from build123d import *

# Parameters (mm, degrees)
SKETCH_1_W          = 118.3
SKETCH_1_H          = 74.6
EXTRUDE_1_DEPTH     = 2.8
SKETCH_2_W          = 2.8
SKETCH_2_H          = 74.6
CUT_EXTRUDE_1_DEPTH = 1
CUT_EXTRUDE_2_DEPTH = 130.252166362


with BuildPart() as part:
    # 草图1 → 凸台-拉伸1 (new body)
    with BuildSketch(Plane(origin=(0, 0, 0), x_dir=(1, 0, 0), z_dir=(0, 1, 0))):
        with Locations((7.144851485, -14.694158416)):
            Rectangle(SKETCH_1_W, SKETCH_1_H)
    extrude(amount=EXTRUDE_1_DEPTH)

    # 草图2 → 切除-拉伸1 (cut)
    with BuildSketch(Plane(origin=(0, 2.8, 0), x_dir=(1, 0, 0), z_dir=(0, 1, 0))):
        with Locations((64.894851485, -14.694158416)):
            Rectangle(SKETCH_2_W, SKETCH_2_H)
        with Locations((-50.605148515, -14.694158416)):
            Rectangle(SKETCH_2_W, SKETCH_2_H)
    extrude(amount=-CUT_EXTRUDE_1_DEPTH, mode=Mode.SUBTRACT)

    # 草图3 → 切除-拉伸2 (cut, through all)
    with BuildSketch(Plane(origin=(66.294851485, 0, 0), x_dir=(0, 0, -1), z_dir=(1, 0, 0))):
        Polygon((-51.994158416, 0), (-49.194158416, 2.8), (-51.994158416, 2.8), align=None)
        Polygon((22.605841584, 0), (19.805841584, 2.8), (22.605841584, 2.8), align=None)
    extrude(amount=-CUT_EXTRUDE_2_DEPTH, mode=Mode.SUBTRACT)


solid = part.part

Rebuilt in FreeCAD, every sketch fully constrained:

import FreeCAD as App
import Part
import Sketcher


def add_polygon(sketch, points):
    """Adds a closed chain of lines whose ends are joined by coincident constraints."""
    first, n = sketch.GeometryCount, len(points)
    for a, b in zip(points, points[1:] + points[:1]):
        sketch.addGeometry(Part.LineSegment(App.Vector(*a, 0), App.Vector(*b, 0)), False)
    for i in range(n):
        sketch.addConstraint(Sketcher.Constraint("Coincident", first + i, 2, first + (i + 1) % n, 1))

doc = App.newDocument("Part")
body = doc.addObject("PartDesign::Body", "Body")

# Sketch on XZ plane
sketch1 = body.newObject("Sketcher::SketchObject", "Sketch")
sketch1.AttachmentSupport = (doc.getObject("XZ_Plane"), [""])
sketch1.MapMode = "FlatFace"
add_polygon(sketch1, [(-52.005149, -22.605842), (-52.005149, 51.994158), (66.294851, 51.994158), (66.294851, -22.605842)])  # lines 0-3
sketch1.addConstraint([
    Sketcher.Constraint("Vertical", 0),
    Sketcher.Constraint("Horizontal", 1),
    Sketcher.Constraint("Vertical", 2),
    Sketcher.Constraint("Horizontal", 3),
    Sketcher.Constraint("DistanceX", 1, 1, 1, 2, 118.3),
    Sketcher.Constraint("DistanceY", 0, 1, 0, 2, 74.6),
    Sketcher.Constraint("DistanceX", 0, 2, -1, 1, 52.005149),
    Sketcher.Constraint("DistanceY", -1, 1, 0, 2, 51.994158),
])
pad1 = body.newObject("PartDesign::Pad", "Pad")
pad1.Profile = sketch1
pad1.Length = 2.8
pad1.Reversed = True

# Sketch on XZ plane
sketch2 = body.newObject("Sketcher::SketchObject", "Sketch001")
sketch2.AttachmentSupport = (doc.getObject("XZ_Plane"), [""])
sketch2.MapMode = "FlatFace"
sketch2.AttachmentOffset = App.Placement(App.Vector(0, 0, -2.8), App.Rotation())
add_polygon(sketch2, [(63.494851, -22.605842), (63.494851, 51.994158), (66.294851, 51.994158), (66.294851, -22.605842)])  # lines 0-3
add_polygon(sketch2, [(-52.005149, -22.605842), (-52.005149, 51.994158), (-49.205149, 51.994158), (-49.205149, -22.605842)])  # lines 4-7
sketch2.addConstraint([
    Sketcher.Constraint("Vertical", 0),
    Sketcher.Constraint("Horizontal", 1),
    Sketcher.Constraint("Vertical", 2),
    Sketcher.Constraint("Horizontal", 3),
    Sketcher.Constraint("Vertical", 4),
    Sketcher.Constraint("Horizontal", 5),
    Sketcher.Constraint("Vertical", 6),
    Sketcher.Constraint("Horizontal", 7),
    Sketcher.Constraint("Horizontal", 1, 2, 4, 2),
    Sketcher.Constraint("Horizontal", 3, 2, 6, 2),
    Sketcher.Constraint("Equal", 3, 5),
    Sketcher.Constraint("DistanceX", 1, 1, 1, 2, 2.8),
    Sketcher.Constraint("DistanceY", 0, 1, 0, 2, 74.6),
    Sketcher.Constraint("DistanceX", 4, 2, 0, 2, 115.5),
    Sketcher.Constraint("DistanceX", -1, 1, 0, 2, 63.494851),
    Sketcher.Constraint("DistanceY", -1, 1, 0, 2, 51.994158),
])
pocket1 = body.newObject("PartDesign::Pocket", "Pocket")
pocket1.Profile = sketch2
pocket1.Length = 1
pocket1.Reversed = True

# Sketch on YZ plane
sketch3 = body.newObject("Sketcher::SketchObject", "Sketch002")
sketch3.AttachmentSupport = (doc.getObject("YZ_Plane"), [""])
sketch3.MapMode = "FlatFace"
sketch3.AttachmentOffset = App.Placement(App.Vector(0, 0, 66.294851), App.Rotation())
add_polygon(sketch3, [(0, 51.994158), (2.8, 49.194158), (2.8, 51.994158)])  # lines 0-2
add_polygon(sketch3, [(2.8, -19.805842), (0, -22.605842), (2.8, -22.605842)])  # lines 3-5
sketch3.addConstraint([
    Sketcher.Constraint("Vertical", 1),
    Sketcher.Constraint("Horizontal", 2),
    Sketcher.Constraint("Horizontal", 4),
    Sketcher.Constraint("Vertical", 5),
    Sketcher.Constraint("PointOnObject", 2, 2, -2),
    Sketcher.Constraint("PointOnObject", 3, 2, -2),
    Sketcher.Constraint("Perpendicular", 0, 3),
    Sketcher.Constraint("Vertical", 1, 2, 4, 2),
    Sketcher.Constraint("Equal", 4, 1),
    Sketcher.Constraint("DistanceX", 2, 2, 2, 1, 2.8),
    Sketcher.Constraint("DistanceY", 5, 2, 0, 2, 69.0),
    Sketcher.Constraint("DistanceY", -1, 1, 0, 2, 49.194158),
])
pocket2 = body.newObject("PartDesign::Pocket", "Pocket001")
pocket2.Profile = sketch3
pocket2.Type = "ThroughAll"

doc.recompute()
